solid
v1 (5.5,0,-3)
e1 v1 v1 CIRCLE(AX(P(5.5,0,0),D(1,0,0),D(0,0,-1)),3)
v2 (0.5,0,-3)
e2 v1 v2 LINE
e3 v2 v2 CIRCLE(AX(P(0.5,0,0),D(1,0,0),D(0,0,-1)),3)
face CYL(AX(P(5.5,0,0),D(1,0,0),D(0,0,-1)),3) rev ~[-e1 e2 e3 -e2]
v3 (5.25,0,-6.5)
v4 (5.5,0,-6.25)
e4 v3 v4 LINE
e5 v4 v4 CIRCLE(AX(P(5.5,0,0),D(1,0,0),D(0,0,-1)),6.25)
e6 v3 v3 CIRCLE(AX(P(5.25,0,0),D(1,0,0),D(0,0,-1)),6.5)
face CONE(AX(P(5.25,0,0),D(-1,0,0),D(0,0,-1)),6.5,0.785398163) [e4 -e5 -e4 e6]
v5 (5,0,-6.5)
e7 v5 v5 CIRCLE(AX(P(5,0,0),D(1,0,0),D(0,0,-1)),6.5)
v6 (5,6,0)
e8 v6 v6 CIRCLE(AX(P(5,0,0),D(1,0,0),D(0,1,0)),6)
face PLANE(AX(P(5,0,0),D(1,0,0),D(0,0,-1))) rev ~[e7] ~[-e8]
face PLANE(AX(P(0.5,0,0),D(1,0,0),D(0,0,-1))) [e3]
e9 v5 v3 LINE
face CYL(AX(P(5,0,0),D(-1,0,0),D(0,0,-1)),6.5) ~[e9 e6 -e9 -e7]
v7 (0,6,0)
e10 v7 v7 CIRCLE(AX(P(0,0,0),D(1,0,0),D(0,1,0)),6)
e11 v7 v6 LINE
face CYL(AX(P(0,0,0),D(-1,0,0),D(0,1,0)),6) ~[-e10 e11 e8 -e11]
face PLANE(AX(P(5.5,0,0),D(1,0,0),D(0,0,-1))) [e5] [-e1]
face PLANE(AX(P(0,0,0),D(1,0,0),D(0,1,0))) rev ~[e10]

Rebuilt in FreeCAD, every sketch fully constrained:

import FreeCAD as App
import Part
import Sketcher
from FreeCAD import Vector
Q = App.Units.Quantity


def edges_at(feature, points):
    """Names of the edges that pass closest to the given points."""
    edges = feature.Shape.Edges
    near = lambda p: min(range(len(edges)), key=lambda i: edges[i].distToShape(Part.Vertex(*p))[0])
    return sorted({f"Edge{near(p) + 1}" for p in points})

doc = App.newDocument("Part")
body = doc.addObject("PartDesign::Body", "Body")

# Sketch on YZ plane
sketch1 = doc.addObject("Sketcher::SketchObject", "Sketch")
body.addObject(sketch1)
sketch1.AttachmentSupport = (doc.YZ_Plane, [""])
sketch1.MapMode = "FlatFace"
sketch1.addGeometry(Part.Circle(Vector(0, 0, 0), Vector(0, 0, 1), 6), False)
sketch1.addConstraint(Sketcher.Constraint("Coincident", 0, 3, -1, 1))
sketch1.addConstraint(Sketcher.Constraint("Diameter", 0, Q("12 mm")))
pad1 = doc.addObject("PartDesign::Pad", "Pad")
body.addObject(pad1)
pad1.Profile = sketch1
pad1.Length = 5

# Sketch on YZ plane
sketch2 = doc.addObject("Sketcher::SketchObject", "Sketch001")
body.addObject(sketch2)
sketch2.AttachmentSupport = (doc.YZ_Plane, [""])
sketch2.MapMode = "FlatFace"
sketch2.AttachmentOffset = App.Placement(Vector(0, 0, 5), App.Rotation())
sketch2.addGeometry(Part.Circle(Vector(0, 0, 0), Vector(0, 0, 1), 6), False)
sketch2.addConstraint(Sketcher.Constraint("Coincident", 0, 3, -1, 1))
sketch2.addConstraint(Sketcher.Constraint("Diameter", 0, Q("13 mm")))
pad2 = doc.addObject("PartDesign::Pad", "Pad001")
body.addObject(pad2)
pad2.Profile = sketch2
pad2.Length = 0.5
doc.recompute()

chamfer = doc.addObject("PartDesign::Chamfer", "Chamfer")
body.addObject(chamfer)
chamfer.Base = (pad2, edges_at(pad2, [(5.5, 0, 6.5)]))
chamfer.Size = 0.25

# Sketch on YZ plane
sketch3 = doc.addObject("Sketcher::SketchObject", "Sketch002")
body.addObject(sketch3)
sketch3.AttachmentSupport = (doc.YZ_Plane, [""])
sketch3.MapMode = "FlatFace"
sketch3.AttachmentOffset = App.Placement(Vector(0, 0, 5.5), App.Rotation())
sketch3.addGeometry(Part.Circle(Vector(0, 0, 0), Vector(0, 0, 1), 3), False)
sketch3.addConstraint(Sketcher.Constraint("Coincident", 0, 3, -1, 1))
sketch3.addConstraint(Sketcher.Constraint("Diameter", 0, Q("6 mm")))
pocket1 = doc.addObject("PartDesign::Pocket", "Pocket")
body.addObject(pocket1)
pocket1.Profile = sketch3
pocket1.Length = 5

doc.recompute()
